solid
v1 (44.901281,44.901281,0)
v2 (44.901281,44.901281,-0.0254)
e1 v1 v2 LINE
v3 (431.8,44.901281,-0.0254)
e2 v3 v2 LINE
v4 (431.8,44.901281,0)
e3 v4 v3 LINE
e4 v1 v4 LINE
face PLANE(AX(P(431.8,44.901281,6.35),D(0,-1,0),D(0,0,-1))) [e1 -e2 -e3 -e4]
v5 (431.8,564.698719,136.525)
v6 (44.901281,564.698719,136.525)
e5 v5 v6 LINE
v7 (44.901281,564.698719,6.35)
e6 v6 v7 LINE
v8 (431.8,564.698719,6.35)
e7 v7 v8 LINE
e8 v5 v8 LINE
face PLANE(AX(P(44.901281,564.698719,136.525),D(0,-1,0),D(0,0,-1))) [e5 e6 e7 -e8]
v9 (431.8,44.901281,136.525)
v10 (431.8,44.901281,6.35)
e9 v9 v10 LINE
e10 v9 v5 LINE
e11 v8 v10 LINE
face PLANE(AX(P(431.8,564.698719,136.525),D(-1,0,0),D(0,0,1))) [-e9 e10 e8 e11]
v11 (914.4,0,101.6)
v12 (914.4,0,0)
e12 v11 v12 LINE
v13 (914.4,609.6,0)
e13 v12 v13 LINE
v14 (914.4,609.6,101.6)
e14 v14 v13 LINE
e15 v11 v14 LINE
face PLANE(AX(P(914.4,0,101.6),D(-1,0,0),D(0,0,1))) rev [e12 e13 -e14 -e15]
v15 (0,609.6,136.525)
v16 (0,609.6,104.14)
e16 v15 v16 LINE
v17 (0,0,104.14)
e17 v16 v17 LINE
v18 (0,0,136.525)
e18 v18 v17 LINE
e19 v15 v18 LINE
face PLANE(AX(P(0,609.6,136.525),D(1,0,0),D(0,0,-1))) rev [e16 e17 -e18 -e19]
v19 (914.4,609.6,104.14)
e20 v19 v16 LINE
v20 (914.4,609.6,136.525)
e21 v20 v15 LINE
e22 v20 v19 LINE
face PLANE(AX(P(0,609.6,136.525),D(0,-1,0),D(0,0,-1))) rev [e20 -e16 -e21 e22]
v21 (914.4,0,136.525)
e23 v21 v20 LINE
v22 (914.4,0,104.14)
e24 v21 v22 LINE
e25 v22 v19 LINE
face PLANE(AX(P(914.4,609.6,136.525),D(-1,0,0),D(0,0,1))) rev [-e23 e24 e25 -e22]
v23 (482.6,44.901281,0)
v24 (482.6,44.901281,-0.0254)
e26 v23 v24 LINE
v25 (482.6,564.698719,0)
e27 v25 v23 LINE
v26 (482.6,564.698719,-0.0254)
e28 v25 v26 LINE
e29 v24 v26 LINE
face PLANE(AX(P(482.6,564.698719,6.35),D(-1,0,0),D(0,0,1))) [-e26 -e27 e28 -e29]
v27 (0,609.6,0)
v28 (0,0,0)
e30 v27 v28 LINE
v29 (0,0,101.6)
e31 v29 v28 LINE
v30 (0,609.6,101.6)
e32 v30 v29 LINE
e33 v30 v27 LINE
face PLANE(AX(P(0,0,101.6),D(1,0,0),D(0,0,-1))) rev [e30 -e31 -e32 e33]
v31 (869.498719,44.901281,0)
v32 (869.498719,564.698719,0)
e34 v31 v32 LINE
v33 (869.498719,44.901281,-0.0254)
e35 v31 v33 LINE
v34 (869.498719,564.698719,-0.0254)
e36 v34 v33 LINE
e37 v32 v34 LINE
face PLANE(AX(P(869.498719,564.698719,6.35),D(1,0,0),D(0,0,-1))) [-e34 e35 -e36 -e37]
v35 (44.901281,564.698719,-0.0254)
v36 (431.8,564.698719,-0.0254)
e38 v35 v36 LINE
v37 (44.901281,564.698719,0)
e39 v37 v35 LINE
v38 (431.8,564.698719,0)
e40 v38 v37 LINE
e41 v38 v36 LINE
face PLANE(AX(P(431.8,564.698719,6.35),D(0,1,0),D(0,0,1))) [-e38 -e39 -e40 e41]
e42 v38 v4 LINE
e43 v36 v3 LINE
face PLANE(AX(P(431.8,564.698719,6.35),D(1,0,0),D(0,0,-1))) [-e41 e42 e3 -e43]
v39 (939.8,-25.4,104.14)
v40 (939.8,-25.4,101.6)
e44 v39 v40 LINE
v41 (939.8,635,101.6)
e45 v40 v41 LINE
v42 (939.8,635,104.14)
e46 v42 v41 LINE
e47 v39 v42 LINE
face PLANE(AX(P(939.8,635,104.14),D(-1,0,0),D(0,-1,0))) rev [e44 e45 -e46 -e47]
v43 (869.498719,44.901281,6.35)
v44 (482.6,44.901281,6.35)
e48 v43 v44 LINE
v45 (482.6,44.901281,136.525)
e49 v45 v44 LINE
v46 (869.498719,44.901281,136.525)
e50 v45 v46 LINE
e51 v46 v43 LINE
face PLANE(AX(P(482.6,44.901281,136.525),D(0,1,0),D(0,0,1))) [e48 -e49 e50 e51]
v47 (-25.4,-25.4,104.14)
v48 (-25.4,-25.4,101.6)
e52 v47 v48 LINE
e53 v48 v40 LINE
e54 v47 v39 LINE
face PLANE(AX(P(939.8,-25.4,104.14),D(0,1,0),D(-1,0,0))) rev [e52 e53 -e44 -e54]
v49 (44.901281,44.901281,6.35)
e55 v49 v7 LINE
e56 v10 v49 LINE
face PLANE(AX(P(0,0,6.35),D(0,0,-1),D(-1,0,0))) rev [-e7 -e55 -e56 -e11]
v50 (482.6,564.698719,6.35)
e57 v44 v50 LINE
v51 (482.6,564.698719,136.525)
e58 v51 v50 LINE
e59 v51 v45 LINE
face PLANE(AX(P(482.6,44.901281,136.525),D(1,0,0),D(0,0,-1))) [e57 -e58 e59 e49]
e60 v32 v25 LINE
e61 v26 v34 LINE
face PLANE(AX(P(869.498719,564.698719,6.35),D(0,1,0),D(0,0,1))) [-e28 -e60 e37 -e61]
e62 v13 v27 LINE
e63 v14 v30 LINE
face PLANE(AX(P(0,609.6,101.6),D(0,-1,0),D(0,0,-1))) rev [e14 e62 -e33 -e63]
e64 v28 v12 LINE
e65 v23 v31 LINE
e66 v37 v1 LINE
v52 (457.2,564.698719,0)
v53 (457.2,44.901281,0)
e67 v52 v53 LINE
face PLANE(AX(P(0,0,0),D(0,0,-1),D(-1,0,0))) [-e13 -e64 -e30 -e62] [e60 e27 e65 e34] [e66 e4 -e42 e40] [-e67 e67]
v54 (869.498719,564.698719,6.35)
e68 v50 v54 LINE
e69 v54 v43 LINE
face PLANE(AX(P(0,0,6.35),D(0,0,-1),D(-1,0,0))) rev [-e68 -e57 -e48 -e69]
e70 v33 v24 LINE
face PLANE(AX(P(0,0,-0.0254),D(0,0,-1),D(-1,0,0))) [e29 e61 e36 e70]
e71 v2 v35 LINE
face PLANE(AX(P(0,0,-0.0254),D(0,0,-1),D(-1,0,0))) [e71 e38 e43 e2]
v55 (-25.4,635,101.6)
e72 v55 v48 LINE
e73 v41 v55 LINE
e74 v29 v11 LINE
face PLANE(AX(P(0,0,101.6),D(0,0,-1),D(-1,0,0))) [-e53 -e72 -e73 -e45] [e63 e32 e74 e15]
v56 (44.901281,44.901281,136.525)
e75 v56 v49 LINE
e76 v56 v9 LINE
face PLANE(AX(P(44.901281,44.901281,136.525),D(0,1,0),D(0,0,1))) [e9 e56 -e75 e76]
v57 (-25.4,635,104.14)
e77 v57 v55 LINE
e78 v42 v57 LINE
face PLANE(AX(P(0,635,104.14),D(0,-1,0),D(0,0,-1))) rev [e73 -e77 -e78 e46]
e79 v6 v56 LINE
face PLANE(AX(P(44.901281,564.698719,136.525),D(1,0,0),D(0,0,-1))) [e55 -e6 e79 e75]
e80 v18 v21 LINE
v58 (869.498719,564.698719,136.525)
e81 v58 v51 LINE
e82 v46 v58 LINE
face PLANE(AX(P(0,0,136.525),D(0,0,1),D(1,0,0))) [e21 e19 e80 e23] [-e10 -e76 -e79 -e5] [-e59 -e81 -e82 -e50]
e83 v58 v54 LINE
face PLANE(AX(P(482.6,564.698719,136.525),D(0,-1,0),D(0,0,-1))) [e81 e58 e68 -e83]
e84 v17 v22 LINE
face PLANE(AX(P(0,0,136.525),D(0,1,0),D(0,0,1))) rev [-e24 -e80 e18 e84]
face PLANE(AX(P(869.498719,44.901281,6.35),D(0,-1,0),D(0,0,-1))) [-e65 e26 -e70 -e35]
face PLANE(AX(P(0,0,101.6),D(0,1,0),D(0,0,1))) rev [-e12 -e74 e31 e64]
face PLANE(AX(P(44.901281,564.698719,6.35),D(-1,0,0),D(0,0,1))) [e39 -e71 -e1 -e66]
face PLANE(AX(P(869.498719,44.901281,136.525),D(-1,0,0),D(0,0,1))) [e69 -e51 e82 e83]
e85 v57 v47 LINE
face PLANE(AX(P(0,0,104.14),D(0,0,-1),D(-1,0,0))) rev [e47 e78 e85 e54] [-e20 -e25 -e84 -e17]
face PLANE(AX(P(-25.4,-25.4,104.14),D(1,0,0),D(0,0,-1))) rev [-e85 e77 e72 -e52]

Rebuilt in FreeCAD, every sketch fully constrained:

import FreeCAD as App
import Part
import Sketcher
from FreeCAD import Vector
Q = App.Units.Quantity


def add_polygon(sketch, points):
    """Adds a closed chain of lines whose ends are joined by coincident constraints."""
    first, n = sketch.GeometryCount, len(points)
    for a, b in zip(points, points[1:] + points[:1]):
        sketch.addGeometry(Part.LineSegment(App.Vector(*a, 0), App.Vector(*b, 0)), False)
    for i in range(n):
        sketch.addConstraint(Sketcher.Constraint("Coincident", first + i, 2, first + (i + 1) % n, 1))

doc = App.newDocument("Part")
params = doc.addObject("Spreadsheet::Sheet", "Params")
for row, (alias, value) in enumerate([
    ("sketch1_width", "36 in"),
    ("sketch1_height", "24 in"),
    ("pad1_length", "4 in"),
    ("sketch2_width", "2 in"),
    ("sketch2_height", "4 in"),
    ("sketch3_width", "38 in"),
    ("sketch3_width2", "36 in"),
    ("sketch3_height", "26 in"),
    ("sketch3_height2", "24 in"),
    ("pad3_length", "0.1 in"),
    ("sketch4_width", "36 in"),
    ("sketch4_height", "24 in"),
    ("pad4_length", "1.375 in"),
    ("pad5_length", "0.001 in"),
    ("pad5_length2", "0.25 in"),
], start=1):
    params.set(f"A{row}", alias)
    params.set(f"B{row}", "=" + value)
    params.setAlias(f"B{row}", alias)

body = doc.addObject("PartDesign::Body", "Body")

# Sketch on XY plane
sketch1 = body.newObject("Sketcher::SketchObject", "Sketch")
sketch1.AttachmentSupport = (doc.getObject("XY_Plane"), [""])
sketch1.MapMode = "FlatFace"
add_polygon(sketch1, [(0, 610), (0, 0), (914, 0), (914, 610)])  # lines 0-3
add_polygon(sketch1, [(869, 45), (45, 45), (45, 565), (869, 565)])  # lines 4-7
sketch1.addConstraint([
    Sketcher.Constraint("Vertical", 0),
    Sketcher.Constraint("Horizontal", 1),
    Sketcher.Constraint("Vertical", 2),
    Sketcher.Constraint("Horizontal", 3),
    Sketcher.Constraint("Horizontal", 4),
    Sketcher.Constraint("Vertical", 5),
    Sketcher.Constraint("Horizontal", 6),
    Sketcher.Constraint("Vertical", 7),
    Sketcher.Constraint("Coincident", 0, 2, -1, 1),
    Sketcher.Constraint("DistanceX", 1, 1, 1, 2, Q("36 in")),
    Sketcher.Constraint("DistanceY", 0, 2, 0, 1, Q("24 in")),
    Sketcher.Constraint("DistanceX", 4, 2, 4, 1, 824.597439),
    Sketcher.Constraint("DistanceY", 5, 1, 5, 2, 519.797439),
    Sketcher.Constraint("DistanceX", -1, 1, 4, 2, 44.901281),
    Sketcher.Constraint("DistanceY", -1, 1, 4, 2, 44.901281),
])
sketch1.setExpression("Constraints[17]", "Params.sketch1_width")
sketch1.setExpression("Constraints[18]", "Params.sketch1_height")
pad1 = body.newObject("PartDesign::Pad", "Pad")
pad1.Profile = sketch1
pad1.setExpression("Length", "Params.pad1_length")

# Sketch on XZ plane
sketch2 = body.newObject("Sketcher::SketchObject", "Sketch001")
sketch2.AttachmentSupport = (doc.getObject("XZ_Plane"), [""])
sketch2.MapMode = "FlatFace"
sketch2.AttachmentOffset = App.Placement(Vector(0, 0, -44.901281), App.Rotation())
add_polygon(sketch2, [(483, 0), (432, 0), (432, 102), (483, 102)])  # lines 0-3
sketch2.addConstraint([
    Sketcher.Constraint("Horizontal", 0),
    Sketcher.Constraint("Vertical", 1),
    Sketcher.Constraint("Horizontal", 2),
    Sketcher.Constraint("Vertical", 3),
    Sketcher.Constraint("PointOnObject", 0, 2, -1),
    Sketcher.Constraint("DistanceX", 0, 2, 0, 1, Q("2 in")),
    Sketcher.Constraint("DistanceY", 1, 1, 1, 2, Q("4 in")),
    Sketcher.Constraint("DistanceX", -1, 1, 0, 2, Q("17 in")),
])
sketch2.setExpression("Constraints[9]", "Params.sketch2_width")
sketch2.setExpression("Constraints[10]", "Params.sketch2_height")
pad2 = body.newObject("PartDesign::Pad", "Pad001")
pad2.Profile = sketch2
pad2.Type = "UpToFirst"
pad2.Reversed = True
body2 = doc.addObject("PartDesign::Body", "Body001")

# Sketch on XY plane
sketch3 = body2.newObject("Sketcher::SketchObject", "Sketch002")
sketch3.AttachmentSupport = (doc.getObject("XY_Plane001"), [""])
sketch3.MapMode = "FlatFace"
sketch3.AttachmentOffset = App.Placement(Vector(0, 0, 4 * 25.4), App.Rotation())
add_polygon(sketch3, [(940, 635), (-25, 635), (-25, -25), (940, -25)])  # lines 0-3
add_polygon(sketch3, [(0, 0), (0, 610), (914, 610), (914, 0)])  # lines 4-7
sketch3.addConstraint([
    Sketcher.Constraint("Horizontal", 0),
    Sketcher.Constraint("Vertical", 1),
    Sketcher.Constraint("Horizontal", 2),
    Sketcher.Constraint("Vertical", 3),
    Sketcher.Constraint("Vertical", 4),
    Sketcher.Constraint("Horizontal", 5),
    Sketcher.Constraint("Vertical", 6),
    Sketcher.Constraint("Horizontal", 7),
    Sketcher.Constraint("Coincident", 7, 2, -1, 1),
    Sketcher.Constraint("DistanceX", 0, 2, 0, 1, Q("38 in")),
    Sketcher.Constraint("DistanceX", 5, 1, 5, 2, Q("36 in")),
    Sketcher.Constraint("DistanceY", 1, 2, 1, 1, Q("26 in")),
    Sketcher.Constraint("DistanceY", 4, 1, 4, 2, Q("24 in")),
    Sketcher.Constraint("DistanceX", 0, 2, -1, 1, Q("1 in")),
    Sketcher.Constraint("DistanceY", -1, 1, 0, 2, Q("25 in")),
])
sketch3.setExpression("Constraints[17]", "Params.sketch3_width")
sketch3.setExpression("Constraints[18]", "Params.sketch3_width2")
sketch3.setExpression("Constraints[19]", "Params.sketch3_height")
sketch3.setExpression("Constraints[20]", "Params.sketch3_height2")
pad3 = body2.newObject("PartDesign::Pad", "Pad002")
pad3.Profile = sketch3
pad3.setExpression("Length", "Params.pad3_length")
body.AllowCompound = True
doc.recompute()

boolean = body.newObject("PartDesign::Boolean", "Boolean")
boolean.Type = "Fuse"
boolean.addObjects([body2])

# Sketch on XY plane
sketch4 = body.newObject("Sketcher::SketchObject", "Sketch003")
sketch4.AttachmentSupport = (doc.getObject("XY_Plane"), [""])
sketch4.MapMode = "FlatFace"
sketch4.AttachmentOffset = App.Placement(Vector(0, 0, 4 * 25.4), App.Rotation())
add_polygon(sketch4, [(0, 610), (0, 0), (914, 0), (914, 610)])  # lines 0-3
add_polygon(sketch4, [(432, 45), (45, 45), (45, 565), (432, 565)])  # lines 4-7
add_polygon(sketch4, [(869, 45), (483, 45), (483, 565), (869, 565)])  # lines 8-11
sketch4.addConstraint([
    Sketcher.Constraint("Vertical", 0),
    Sketcher.Constraint("Horizontal", 1),
    Sketcher.Constraint("Vertical", 2),
    Sketcher.Constraint("Horizontal", 3),
    Sketcher.Constraint("Horizontal", 4),
    Sketcher.Constraint("Vertical", 5),
    Sketcher.Constraint("Horizontal", 6),
    Sketcher.Constraint("Vertical", 7),
    Sketcher.Constraint("Horizontal", 8),
    Sketcher.Constraint("Vertical", 9),
    Sketcher.Constraint("Horizontal", 10),
    Sketcher.Constraint("Vertical", 11),
    Sketcher.Constraint("Coincident", 0, 2, -1, 1),
    Sketcher.Constraint("Horizontal", 7, 2, 8, 2),
    Sketcher.Constraint("Horizontal", 6, 2, 9, 2),
    Sketcher.Constraint("Equal", 6, 8),
    Sketcher.Constraint("DistanceX", 1, 1, 1, 2, Q("36 in")),
    Sketcher.Constraint("DistanceY", 0, 2, 0, 1, Q("24 in")),
    Sketcher.Constraint("DistanceX", -1, 1, 6, 2, Q("17 in")),
    Sketcher.Constraint("DistanceX", -1, 1, 8, 2, Q("19 in")),
    Sketcher.Constraint("DistanceX", 4, 2, 4, 1, 386.898719),
    Sketcher.Constraint("DistanceY", 5, 1, 5, 2, 519.797439),
    Sketcher.Constraint("DistanceY", -1, 1, 4, 2, 44.901281),
])
sketch4.setExpression("Constraints[28]", "Params.sketch4_width")
sketch4.setExpression("Constraints[29]", "Params.sketch4_height")
pad4 = body.newObject("PartDesign::Pad", "Pad003")
pad4.Profile = sketch4
pad4.setExpression("Length", "Params.pad4_length")

# Sketch on XY plane
sketch5 = body.newObject("Sketcher::SketchObject", "Sketch004")
sketch5.AttachmentSupport = (doc.getObject("XY_Plane"), [""])
sketch5.MapMode = "FlatFace"
add_polygon(sketch5, [(869, 565), (869, 45), (483, 45), (483, 565)])  # lines 0-3
add_polygon(sketch5, [(432, 565), (432, 45), (45, 45), (45, 565)])  # lines 4-7
sketch5.addConstraint([
    Sketcher.Constraint("Vertical", 0),
    Sketcher.Constraint("Horizontal", 1),
    Sketcher.Constraint("Vertical", 2),
    Sketcher.Constraint("Horizontal", 3),
    Sketcher.Constraint("Vertical", 4),
    Sketcher.Constraint("Horizontal", 5),
    Sketcher.Constraint("Vertical", 6),
    Sketcher.Constraint("Horizontal", 7),
    Sketcher.Constraint("Horizontal", 1, 2, 4, 2),
    Sketcher.Constraint("Horizontal", 3, 2, 6, 2),
    Sketcher.Constraint("Equal", 3, 5),
    Sketcher.Constraint("DistanceX", -1, 1, 1, 2, Q("19 in")),
    Sketcher.Constraint("DistanceX", -1, 1, 4, 2, Q("17 in")),
    Sketcher.Constraint("DistanceX", 1, 2, 1, 1, 386.898719),
    Sketcher.Constraint("DistanceY", 0, 2, 0, 1, 519.797439),
    Sketcher.Constraint("DistanceY", -1, 1, 0, 2, 44.901281),
])
pad5 = body.newObject("PartDesign::Pad", "Pad004")
pad5.Profile = sketch5
pad5.Type = "TwoLengths"
pad5.setExpression("Length", "Params.pad5_length")
pad5.setExpression("Length2", "Params.pad5_length2")
pad5.Reversed = True

doc.recompute()
